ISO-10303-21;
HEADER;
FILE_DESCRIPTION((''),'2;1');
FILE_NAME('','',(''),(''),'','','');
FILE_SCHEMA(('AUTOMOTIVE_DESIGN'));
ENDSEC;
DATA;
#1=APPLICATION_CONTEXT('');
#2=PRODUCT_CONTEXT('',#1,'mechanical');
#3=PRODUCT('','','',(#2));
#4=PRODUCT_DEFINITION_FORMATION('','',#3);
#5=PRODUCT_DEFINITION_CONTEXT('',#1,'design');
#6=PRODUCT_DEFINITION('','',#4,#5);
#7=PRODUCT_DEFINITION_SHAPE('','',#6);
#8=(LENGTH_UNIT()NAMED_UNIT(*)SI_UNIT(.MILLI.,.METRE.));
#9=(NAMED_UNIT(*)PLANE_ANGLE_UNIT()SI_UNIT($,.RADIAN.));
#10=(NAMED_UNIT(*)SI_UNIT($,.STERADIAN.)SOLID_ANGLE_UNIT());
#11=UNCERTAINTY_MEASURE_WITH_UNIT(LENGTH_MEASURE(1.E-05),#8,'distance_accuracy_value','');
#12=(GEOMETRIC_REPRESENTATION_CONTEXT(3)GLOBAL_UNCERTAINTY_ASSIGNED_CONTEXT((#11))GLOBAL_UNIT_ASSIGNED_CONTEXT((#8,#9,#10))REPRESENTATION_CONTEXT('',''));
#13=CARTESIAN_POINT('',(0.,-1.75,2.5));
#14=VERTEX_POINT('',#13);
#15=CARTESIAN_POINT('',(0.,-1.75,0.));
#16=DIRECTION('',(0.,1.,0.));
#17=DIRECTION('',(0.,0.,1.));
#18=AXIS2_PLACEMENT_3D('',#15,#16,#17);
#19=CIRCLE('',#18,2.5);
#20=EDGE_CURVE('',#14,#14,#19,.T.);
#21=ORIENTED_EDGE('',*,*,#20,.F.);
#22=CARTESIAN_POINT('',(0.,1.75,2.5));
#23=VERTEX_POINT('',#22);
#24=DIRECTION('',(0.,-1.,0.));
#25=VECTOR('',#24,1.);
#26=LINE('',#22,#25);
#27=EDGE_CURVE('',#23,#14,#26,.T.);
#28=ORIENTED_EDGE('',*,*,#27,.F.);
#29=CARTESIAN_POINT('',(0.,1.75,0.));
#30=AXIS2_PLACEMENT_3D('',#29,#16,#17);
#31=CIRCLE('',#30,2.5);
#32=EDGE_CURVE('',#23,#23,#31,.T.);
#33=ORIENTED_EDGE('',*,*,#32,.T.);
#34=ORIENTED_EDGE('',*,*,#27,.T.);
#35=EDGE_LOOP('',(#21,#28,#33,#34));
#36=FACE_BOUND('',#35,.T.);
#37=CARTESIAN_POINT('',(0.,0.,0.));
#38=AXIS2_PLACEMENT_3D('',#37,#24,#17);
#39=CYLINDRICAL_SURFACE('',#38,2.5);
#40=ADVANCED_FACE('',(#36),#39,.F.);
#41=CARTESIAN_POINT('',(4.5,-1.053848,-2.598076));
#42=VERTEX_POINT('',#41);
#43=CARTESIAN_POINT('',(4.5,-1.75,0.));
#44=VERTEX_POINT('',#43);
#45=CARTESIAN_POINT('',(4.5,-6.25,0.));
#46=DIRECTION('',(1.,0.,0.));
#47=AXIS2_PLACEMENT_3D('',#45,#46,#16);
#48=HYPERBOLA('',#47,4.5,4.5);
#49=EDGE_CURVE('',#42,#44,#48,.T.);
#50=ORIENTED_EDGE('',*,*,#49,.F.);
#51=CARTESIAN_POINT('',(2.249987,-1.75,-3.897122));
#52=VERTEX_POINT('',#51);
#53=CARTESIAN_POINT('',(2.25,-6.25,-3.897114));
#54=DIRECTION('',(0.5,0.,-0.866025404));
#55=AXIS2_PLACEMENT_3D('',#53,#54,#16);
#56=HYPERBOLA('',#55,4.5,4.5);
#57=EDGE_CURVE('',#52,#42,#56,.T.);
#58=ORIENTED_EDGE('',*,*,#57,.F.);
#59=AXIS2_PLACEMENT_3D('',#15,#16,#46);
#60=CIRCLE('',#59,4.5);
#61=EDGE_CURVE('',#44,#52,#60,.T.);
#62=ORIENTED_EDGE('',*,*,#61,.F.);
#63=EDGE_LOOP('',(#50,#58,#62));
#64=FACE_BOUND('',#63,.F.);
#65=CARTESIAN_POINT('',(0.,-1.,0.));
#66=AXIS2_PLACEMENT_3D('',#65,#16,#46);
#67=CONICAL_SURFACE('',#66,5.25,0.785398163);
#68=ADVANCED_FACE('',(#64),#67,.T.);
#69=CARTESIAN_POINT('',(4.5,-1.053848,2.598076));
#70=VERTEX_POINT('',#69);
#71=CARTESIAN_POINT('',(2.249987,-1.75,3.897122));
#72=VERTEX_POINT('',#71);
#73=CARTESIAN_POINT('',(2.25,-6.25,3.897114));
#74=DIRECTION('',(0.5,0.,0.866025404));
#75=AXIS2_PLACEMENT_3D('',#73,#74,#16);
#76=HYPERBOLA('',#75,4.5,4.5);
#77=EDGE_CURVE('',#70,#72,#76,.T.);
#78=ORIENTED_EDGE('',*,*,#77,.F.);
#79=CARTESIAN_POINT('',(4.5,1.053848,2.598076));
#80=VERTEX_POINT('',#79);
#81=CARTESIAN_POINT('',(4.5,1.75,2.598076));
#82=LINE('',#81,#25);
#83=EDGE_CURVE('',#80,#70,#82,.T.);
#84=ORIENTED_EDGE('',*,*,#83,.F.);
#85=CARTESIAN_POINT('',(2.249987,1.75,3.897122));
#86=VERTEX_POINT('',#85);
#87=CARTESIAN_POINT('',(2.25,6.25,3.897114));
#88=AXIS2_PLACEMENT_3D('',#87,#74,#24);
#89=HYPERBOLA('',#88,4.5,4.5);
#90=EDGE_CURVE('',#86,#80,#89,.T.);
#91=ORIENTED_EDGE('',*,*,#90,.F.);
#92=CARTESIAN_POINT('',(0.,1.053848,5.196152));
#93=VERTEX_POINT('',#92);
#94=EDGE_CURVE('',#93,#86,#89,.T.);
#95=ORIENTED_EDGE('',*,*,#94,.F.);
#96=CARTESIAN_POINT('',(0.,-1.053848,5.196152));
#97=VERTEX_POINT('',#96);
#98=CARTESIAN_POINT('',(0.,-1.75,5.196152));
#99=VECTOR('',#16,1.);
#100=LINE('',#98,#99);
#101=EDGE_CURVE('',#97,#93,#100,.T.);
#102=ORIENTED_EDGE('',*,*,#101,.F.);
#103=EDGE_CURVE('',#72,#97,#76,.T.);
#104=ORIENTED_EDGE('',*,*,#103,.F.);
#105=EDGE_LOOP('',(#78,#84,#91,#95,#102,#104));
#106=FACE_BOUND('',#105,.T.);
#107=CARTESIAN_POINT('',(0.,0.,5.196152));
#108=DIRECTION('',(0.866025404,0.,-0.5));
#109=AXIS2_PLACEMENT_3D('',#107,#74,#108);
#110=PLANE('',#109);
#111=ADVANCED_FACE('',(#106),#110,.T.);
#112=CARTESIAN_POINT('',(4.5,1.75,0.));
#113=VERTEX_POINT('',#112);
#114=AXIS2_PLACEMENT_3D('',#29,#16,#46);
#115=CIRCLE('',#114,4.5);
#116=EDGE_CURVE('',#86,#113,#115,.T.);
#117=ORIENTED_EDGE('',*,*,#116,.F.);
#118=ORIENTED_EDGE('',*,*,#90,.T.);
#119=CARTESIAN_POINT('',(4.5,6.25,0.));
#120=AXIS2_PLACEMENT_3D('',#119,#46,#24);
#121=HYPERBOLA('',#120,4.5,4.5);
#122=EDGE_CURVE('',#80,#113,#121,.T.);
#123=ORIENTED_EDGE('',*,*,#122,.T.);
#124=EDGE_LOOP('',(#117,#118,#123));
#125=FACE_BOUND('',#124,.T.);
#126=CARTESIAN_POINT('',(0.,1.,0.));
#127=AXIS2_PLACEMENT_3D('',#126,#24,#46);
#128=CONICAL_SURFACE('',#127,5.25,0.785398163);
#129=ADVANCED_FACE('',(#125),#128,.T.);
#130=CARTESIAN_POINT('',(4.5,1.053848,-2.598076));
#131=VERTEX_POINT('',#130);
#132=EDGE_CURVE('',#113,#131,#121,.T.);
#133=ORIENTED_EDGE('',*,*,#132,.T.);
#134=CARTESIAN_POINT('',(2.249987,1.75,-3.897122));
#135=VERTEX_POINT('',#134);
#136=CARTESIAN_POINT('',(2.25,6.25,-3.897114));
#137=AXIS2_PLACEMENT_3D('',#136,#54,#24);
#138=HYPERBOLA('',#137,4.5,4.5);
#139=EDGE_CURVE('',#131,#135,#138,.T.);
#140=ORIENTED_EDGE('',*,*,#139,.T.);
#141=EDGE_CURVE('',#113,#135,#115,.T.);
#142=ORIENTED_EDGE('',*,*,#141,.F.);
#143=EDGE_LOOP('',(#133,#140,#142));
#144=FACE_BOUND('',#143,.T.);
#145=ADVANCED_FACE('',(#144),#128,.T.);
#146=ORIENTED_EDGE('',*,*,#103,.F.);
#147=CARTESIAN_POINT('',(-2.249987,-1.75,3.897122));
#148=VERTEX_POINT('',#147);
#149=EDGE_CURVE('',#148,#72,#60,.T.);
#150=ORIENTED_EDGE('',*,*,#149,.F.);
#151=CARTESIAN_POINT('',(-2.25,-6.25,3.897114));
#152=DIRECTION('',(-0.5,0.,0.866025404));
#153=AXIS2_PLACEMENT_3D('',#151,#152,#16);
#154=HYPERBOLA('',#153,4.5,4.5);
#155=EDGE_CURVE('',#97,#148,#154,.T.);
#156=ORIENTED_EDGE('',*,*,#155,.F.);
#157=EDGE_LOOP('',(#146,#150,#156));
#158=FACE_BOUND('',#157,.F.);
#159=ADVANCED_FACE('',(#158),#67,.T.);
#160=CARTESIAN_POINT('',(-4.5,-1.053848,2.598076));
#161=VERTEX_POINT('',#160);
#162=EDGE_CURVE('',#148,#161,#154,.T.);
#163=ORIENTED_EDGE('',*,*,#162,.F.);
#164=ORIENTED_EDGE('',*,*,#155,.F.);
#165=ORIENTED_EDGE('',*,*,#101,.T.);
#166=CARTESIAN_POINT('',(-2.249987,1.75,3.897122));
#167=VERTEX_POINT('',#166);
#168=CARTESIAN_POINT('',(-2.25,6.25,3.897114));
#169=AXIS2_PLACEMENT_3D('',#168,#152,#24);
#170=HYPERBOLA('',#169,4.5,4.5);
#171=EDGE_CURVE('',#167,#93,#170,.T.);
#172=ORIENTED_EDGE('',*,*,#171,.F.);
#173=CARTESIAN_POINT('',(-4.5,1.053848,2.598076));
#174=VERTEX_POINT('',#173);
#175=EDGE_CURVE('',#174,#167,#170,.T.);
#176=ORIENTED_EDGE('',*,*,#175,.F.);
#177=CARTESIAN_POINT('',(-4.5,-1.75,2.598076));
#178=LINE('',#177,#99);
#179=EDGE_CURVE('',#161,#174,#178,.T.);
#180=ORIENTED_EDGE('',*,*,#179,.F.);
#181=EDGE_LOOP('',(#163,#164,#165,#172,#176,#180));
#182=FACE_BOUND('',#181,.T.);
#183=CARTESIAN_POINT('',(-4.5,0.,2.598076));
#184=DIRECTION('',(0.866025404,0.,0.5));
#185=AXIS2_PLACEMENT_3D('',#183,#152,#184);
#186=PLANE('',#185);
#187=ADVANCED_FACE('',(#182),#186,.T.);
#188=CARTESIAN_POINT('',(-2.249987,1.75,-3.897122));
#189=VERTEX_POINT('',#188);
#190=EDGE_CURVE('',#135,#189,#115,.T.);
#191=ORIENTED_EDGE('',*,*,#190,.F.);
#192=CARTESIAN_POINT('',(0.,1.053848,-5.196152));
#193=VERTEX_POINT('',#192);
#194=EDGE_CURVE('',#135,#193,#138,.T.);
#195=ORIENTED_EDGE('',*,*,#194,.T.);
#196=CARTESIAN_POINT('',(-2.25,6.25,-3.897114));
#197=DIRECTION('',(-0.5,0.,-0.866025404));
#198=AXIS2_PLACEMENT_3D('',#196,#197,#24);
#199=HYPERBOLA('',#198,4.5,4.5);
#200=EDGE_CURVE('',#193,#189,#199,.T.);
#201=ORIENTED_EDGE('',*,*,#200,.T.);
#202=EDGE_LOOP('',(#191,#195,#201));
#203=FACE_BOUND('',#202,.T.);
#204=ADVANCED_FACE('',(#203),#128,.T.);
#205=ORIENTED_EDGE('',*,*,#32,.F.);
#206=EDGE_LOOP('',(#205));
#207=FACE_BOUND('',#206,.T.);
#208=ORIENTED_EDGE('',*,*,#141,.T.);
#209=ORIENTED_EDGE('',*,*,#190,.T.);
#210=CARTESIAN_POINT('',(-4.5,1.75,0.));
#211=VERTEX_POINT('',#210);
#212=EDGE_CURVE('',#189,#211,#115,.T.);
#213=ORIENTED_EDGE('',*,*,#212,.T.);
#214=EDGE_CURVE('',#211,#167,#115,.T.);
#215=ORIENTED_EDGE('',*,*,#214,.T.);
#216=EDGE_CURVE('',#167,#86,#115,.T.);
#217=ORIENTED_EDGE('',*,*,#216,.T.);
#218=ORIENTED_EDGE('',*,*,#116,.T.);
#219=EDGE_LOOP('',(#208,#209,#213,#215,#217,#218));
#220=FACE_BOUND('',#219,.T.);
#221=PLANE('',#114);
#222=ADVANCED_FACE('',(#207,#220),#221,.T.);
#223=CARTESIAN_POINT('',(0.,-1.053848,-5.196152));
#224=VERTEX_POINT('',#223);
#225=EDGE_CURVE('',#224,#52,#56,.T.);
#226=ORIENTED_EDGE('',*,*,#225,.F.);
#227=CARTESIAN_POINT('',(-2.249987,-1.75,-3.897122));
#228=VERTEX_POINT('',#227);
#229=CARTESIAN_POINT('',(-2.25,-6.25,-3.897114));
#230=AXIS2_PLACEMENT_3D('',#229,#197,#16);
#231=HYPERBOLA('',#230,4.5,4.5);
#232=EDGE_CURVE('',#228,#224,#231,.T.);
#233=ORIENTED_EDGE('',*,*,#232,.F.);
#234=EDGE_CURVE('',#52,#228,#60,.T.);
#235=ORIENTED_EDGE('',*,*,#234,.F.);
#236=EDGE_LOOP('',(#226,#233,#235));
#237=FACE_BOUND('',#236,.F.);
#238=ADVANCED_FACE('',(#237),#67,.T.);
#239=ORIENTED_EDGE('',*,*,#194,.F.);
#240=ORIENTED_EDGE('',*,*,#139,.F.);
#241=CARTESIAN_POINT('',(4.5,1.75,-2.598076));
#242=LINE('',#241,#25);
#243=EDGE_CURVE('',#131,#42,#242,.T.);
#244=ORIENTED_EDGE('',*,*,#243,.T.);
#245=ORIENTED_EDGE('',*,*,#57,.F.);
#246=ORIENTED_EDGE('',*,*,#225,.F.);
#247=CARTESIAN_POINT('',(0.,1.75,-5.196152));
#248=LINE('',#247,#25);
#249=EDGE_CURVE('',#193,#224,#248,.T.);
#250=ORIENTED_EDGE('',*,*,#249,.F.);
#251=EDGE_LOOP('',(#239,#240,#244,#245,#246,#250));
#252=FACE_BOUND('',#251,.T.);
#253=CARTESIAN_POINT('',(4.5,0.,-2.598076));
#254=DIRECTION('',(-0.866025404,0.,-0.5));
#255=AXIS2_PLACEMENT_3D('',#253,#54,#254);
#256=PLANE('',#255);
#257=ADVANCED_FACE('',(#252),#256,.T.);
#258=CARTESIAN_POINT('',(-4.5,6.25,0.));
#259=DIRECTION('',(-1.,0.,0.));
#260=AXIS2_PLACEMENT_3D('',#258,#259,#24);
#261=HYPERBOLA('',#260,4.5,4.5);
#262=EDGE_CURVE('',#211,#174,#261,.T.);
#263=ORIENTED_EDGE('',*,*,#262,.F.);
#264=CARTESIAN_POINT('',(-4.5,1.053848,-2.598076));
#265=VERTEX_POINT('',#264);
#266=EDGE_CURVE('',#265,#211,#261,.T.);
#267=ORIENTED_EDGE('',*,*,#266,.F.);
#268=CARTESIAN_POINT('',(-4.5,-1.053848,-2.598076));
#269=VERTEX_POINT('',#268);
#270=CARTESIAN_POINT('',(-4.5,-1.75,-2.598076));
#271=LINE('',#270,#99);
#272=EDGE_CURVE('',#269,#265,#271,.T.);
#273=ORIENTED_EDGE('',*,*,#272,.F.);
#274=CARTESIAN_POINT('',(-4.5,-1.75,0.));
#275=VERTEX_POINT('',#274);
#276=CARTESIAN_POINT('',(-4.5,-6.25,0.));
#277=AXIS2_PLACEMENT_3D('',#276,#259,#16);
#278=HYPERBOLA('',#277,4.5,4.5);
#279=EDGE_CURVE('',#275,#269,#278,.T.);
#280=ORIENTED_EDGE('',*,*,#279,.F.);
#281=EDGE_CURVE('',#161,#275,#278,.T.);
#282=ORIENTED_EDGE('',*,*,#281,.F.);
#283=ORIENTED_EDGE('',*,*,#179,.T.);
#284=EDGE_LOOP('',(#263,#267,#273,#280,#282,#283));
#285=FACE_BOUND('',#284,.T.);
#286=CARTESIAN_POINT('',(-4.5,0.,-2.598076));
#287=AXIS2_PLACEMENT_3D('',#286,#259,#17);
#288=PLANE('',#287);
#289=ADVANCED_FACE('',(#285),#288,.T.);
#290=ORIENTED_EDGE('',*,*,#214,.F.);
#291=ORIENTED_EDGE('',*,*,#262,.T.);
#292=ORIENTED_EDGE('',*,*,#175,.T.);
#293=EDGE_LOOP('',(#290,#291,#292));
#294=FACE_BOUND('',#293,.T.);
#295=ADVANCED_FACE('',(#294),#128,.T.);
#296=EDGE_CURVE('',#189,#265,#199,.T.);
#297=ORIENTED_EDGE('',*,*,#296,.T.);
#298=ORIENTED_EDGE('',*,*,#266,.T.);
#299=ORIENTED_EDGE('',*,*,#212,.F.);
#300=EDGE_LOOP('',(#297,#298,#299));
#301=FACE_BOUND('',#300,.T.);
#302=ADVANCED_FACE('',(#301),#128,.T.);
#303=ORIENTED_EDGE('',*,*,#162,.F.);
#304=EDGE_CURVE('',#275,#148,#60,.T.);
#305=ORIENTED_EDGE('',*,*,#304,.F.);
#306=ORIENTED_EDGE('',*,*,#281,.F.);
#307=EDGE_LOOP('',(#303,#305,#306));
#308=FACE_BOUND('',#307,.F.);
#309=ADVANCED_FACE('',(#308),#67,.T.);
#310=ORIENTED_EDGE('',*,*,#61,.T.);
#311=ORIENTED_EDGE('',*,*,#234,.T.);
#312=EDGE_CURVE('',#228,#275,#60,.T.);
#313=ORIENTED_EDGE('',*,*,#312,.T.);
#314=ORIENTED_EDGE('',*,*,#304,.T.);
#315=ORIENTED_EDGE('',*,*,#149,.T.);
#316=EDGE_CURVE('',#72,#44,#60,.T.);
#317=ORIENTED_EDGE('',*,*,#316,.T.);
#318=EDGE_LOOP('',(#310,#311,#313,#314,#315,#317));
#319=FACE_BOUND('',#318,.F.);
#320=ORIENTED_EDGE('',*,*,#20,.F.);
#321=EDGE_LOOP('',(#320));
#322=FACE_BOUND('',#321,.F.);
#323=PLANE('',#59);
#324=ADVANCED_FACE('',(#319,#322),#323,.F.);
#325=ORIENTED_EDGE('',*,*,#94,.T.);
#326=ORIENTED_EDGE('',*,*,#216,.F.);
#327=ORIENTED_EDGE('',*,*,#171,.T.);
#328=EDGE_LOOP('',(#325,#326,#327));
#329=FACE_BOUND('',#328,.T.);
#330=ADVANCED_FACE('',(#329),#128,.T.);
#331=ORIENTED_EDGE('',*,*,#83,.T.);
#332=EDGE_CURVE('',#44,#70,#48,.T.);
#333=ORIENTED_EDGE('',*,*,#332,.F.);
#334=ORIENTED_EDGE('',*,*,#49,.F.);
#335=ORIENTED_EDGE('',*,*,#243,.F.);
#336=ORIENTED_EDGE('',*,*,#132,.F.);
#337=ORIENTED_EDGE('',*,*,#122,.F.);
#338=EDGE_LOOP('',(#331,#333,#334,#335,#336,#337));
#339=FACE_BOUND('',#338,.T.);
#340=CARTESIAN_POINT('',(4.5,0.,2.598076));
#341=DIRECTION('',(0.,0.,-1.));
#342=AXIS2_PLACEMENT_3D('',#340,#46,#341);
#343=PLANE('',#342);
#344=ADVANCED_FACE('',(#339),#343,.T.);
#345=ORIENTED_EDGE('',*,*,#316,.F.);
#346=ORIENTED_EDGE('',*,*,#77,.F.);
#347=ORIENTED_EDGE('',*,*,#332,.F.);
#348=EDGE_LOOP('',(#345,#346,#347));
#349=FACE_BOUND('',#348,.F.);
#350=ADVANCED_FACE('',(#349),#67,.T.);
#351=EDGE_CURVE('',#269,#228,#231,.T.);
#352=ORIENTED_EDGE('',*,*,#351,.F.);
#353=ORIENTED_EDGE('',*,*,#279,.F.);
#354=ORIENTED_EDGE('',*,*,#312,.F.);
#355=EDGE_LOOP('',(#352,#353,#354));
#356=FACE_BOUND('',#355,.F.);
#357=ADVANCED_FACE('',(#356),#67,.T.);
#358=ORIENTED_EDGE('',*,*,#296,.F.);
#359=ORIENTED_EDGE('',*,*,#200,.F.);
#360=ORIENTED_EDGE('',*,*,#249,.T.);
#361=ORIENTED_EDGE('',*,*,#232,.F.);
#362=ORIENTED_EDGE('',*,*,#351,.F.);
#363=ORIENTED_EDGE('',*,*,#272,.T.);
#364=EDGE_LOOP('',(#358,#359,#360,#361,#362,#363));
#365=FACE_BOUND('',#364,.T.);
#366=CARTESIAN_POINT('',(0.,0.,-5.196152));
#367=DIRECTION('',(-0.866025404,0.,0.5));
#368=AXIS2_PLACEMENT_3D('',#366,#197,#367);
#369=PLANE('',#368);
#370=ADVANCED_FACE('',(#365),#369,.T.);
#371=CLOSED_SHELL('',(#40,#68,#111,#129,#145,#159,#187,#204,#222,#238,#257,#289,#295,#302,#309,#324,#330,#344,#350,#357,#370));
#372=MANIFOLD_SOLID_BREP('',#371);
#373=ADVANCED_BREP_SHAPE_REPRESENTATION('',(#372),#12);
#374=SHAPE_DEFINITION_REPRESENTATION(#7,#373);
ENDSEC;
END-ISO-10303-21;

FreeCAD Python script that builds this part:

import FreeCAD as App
import Part
import Sketcher
from FreeCAD import Vector
Q = App.Units.Quantity

doc = App.newDocument("Part")
body = doc.addObject("PartDesign::Body", "Body")

# Sketch on XZ plane
sketch1 = doc.addObject("Sketcher::SketchObject", "Sketch")
body.addObject(sketch1)
sketch1.AttachmentSupport = (doc.XZ_Plane, [""])
sketch1.MapMode = "FlatFace"
sketch1.addGeometry([
    Part.LineSegment(Vector(0, -5.2, 0), Vector(-4.5, -2.6, 0)),  # 0
    Part.LineSegment(Vector(-4.5, -2.6, 0), Vector(-4.5, 2.6, 0)),  # 1
    Part.LineSegment(Vector(-4.5, 2.6, 0), Vector(0, 5.2, 0)),  # 2
    Part.LineSegment(Vector(0, 5.2, 0), Vector(4.5, 2.6, 0)),  # 3
    Part.LineSegment(Vector(4.5, 2.6, 0), Vector(4.5, -2.6, 0)),  # 4
    Part.LineSegment(Vector(4.5, -2.6, 0), Vector(0, -5.2, 0)),  # 5
    Part.Circle(Vector(0, 0, 0), Vector(0, 0, 1), 2.5),  # 6
], False)
sketch1.addConstraint([
    Sketcher.Constraint("Coincident", 0, 2, 1, 1),
    Sketcher.Constraint("Coincident", 1, 2, 2, 1),
    Sketcher.Constraint("Coincident", 2, 2, 3, 1),
    Sketcher.Constraint("Coincident", 3, 2, 4, 1),
    Sketcher.Constraint("Coincident", 4, 2, 5, 1),
    Sketcher.Constraint("Coincident", 5, 2, 0, 1),
    Sketcher.Constraint("Vertical", 1),
    Sketcher.Constraint("Vertical", 4),
    Sketcher.Constraint("Coincident", 6, 3, -1, 1),
    Sketcher.Constraint("Symmetric", 0, 2, 3, 2, -1, 1),
    Sketcher.Constraint("Symmetric", 2, 2, 5, 2, -1, 1),
    Sketcher.Constraint("PointOnObject", 2, 2, -2),
    Sketcher.Constraint("Parallel", 2, 5),
    Sketcher.Constraint("Horizontal", 1, 2, 3, 2),
    Sketcher.Constraint("Diameter", 6, Q("5 mm")),
    Sketcher.Constraint("Angle", 0, Q("150 deg")),
    Sketcher.Constraint("DistanceX", 1, 2, 3, 2, Q("9 mm")),
    Sketcher.Constraint("DistanceY", 1, 1, 1, 2, Q("5.196152 mm")),
])
pad1 = doc.addObject("PartDesign::Pad", "Pad")
body.addObject(pad1)
pad1.Profile = sketch1
pad1.Length = 3.5
pad1.Midplane = True

# Sketch on XY plane
sketch2 = doc.addObject("Sketcher::SketchObject", "Sketch001")
body.addObject(sketch2)
sketch2.AttachmentSupport = (doc.XY_Plane, [""])
sketch2.MapMode = "FlatFace"
sketch2.addGeometry([
    Part.LineSegment(Vector(-5.2, 1, 0), Vector(-4.5, 1.8, 0)),
    Part.LineSegment(Vector(-4.5, 1.8, 0), Vector(-5.2, 1.8, 0)),
    Part.LineSegment(Vector(-5.2, 1.8, 0), Vector(-5.2, 1, 0)),
], False)
sketch2.addConstraint([
    Sketcher.Constraint("Coincident", 0, 2, 1, 1),
    Sketcher.Constraint("Coincident", 1, 2, 2, 1),
    Sketcher.Constraint("Coincident", 2, 2, 0, 1),
    Sketcher.Constraint("Horizontal", 1),
    Sketcher.Constraint("Vertical", 2),
    Sketcher.Constraint("Equal", 1, 2),
    Sketcher.Constraint("DistanceY", -1, 1, 2, 2, Q("1 mm")),
    Sketcher.Constraint("DistanceX", 1, 2, 1, 1, Q("0.75 mm")),
    Sketcher.Constraint("DistanceX", 0, 2, -1, 1, Q("4.5 mm")),
])

# Sketch on XZ plane
sketch3 = doc.addObject("Sketcher::SketchObject", "Sketch002")
body.addObject(sketch3)
sketch3.AttachmentSupport = (doc.XZ_Plane, [""])
sketch3.MapMode = "FlatFace"
sketch3.AttachmentOffset = App.Placement(Vector(0, 0, -1.75), App.Rotation())
sketch3.addGeometry(Part.Circle(Vector(0, 0, 0), Vector(0, 0, 1), 4.5), False)
sketch3.addConstraint([
    Sketcher.Constraint("Coincident", 0, 3, -1, 1),
    Sketcher.Constraint("Diameter", 0, Q("9 mm")),
])
doc.recompute()

subtractivepipe = doc.addObject("PartDesign::SubtractivePipe", "SubtractivePipe")
body.addObject(subtractivepipe)
subtractivepipe.Profile = sketch2
subtractivepipe.Spine = (sketch3, ["Edge1"])
doc.recompute()

mirrored = doc.addObject("PartDesign::Mirrored", "Mirrored")
body.addObject(mirrored)
mirrored.Originals = [subtractivepipe]
mirrored.MirrorPlane = (doc.XZ_Plane, [""])
body.Tip = mirrored

doc.recompute()
